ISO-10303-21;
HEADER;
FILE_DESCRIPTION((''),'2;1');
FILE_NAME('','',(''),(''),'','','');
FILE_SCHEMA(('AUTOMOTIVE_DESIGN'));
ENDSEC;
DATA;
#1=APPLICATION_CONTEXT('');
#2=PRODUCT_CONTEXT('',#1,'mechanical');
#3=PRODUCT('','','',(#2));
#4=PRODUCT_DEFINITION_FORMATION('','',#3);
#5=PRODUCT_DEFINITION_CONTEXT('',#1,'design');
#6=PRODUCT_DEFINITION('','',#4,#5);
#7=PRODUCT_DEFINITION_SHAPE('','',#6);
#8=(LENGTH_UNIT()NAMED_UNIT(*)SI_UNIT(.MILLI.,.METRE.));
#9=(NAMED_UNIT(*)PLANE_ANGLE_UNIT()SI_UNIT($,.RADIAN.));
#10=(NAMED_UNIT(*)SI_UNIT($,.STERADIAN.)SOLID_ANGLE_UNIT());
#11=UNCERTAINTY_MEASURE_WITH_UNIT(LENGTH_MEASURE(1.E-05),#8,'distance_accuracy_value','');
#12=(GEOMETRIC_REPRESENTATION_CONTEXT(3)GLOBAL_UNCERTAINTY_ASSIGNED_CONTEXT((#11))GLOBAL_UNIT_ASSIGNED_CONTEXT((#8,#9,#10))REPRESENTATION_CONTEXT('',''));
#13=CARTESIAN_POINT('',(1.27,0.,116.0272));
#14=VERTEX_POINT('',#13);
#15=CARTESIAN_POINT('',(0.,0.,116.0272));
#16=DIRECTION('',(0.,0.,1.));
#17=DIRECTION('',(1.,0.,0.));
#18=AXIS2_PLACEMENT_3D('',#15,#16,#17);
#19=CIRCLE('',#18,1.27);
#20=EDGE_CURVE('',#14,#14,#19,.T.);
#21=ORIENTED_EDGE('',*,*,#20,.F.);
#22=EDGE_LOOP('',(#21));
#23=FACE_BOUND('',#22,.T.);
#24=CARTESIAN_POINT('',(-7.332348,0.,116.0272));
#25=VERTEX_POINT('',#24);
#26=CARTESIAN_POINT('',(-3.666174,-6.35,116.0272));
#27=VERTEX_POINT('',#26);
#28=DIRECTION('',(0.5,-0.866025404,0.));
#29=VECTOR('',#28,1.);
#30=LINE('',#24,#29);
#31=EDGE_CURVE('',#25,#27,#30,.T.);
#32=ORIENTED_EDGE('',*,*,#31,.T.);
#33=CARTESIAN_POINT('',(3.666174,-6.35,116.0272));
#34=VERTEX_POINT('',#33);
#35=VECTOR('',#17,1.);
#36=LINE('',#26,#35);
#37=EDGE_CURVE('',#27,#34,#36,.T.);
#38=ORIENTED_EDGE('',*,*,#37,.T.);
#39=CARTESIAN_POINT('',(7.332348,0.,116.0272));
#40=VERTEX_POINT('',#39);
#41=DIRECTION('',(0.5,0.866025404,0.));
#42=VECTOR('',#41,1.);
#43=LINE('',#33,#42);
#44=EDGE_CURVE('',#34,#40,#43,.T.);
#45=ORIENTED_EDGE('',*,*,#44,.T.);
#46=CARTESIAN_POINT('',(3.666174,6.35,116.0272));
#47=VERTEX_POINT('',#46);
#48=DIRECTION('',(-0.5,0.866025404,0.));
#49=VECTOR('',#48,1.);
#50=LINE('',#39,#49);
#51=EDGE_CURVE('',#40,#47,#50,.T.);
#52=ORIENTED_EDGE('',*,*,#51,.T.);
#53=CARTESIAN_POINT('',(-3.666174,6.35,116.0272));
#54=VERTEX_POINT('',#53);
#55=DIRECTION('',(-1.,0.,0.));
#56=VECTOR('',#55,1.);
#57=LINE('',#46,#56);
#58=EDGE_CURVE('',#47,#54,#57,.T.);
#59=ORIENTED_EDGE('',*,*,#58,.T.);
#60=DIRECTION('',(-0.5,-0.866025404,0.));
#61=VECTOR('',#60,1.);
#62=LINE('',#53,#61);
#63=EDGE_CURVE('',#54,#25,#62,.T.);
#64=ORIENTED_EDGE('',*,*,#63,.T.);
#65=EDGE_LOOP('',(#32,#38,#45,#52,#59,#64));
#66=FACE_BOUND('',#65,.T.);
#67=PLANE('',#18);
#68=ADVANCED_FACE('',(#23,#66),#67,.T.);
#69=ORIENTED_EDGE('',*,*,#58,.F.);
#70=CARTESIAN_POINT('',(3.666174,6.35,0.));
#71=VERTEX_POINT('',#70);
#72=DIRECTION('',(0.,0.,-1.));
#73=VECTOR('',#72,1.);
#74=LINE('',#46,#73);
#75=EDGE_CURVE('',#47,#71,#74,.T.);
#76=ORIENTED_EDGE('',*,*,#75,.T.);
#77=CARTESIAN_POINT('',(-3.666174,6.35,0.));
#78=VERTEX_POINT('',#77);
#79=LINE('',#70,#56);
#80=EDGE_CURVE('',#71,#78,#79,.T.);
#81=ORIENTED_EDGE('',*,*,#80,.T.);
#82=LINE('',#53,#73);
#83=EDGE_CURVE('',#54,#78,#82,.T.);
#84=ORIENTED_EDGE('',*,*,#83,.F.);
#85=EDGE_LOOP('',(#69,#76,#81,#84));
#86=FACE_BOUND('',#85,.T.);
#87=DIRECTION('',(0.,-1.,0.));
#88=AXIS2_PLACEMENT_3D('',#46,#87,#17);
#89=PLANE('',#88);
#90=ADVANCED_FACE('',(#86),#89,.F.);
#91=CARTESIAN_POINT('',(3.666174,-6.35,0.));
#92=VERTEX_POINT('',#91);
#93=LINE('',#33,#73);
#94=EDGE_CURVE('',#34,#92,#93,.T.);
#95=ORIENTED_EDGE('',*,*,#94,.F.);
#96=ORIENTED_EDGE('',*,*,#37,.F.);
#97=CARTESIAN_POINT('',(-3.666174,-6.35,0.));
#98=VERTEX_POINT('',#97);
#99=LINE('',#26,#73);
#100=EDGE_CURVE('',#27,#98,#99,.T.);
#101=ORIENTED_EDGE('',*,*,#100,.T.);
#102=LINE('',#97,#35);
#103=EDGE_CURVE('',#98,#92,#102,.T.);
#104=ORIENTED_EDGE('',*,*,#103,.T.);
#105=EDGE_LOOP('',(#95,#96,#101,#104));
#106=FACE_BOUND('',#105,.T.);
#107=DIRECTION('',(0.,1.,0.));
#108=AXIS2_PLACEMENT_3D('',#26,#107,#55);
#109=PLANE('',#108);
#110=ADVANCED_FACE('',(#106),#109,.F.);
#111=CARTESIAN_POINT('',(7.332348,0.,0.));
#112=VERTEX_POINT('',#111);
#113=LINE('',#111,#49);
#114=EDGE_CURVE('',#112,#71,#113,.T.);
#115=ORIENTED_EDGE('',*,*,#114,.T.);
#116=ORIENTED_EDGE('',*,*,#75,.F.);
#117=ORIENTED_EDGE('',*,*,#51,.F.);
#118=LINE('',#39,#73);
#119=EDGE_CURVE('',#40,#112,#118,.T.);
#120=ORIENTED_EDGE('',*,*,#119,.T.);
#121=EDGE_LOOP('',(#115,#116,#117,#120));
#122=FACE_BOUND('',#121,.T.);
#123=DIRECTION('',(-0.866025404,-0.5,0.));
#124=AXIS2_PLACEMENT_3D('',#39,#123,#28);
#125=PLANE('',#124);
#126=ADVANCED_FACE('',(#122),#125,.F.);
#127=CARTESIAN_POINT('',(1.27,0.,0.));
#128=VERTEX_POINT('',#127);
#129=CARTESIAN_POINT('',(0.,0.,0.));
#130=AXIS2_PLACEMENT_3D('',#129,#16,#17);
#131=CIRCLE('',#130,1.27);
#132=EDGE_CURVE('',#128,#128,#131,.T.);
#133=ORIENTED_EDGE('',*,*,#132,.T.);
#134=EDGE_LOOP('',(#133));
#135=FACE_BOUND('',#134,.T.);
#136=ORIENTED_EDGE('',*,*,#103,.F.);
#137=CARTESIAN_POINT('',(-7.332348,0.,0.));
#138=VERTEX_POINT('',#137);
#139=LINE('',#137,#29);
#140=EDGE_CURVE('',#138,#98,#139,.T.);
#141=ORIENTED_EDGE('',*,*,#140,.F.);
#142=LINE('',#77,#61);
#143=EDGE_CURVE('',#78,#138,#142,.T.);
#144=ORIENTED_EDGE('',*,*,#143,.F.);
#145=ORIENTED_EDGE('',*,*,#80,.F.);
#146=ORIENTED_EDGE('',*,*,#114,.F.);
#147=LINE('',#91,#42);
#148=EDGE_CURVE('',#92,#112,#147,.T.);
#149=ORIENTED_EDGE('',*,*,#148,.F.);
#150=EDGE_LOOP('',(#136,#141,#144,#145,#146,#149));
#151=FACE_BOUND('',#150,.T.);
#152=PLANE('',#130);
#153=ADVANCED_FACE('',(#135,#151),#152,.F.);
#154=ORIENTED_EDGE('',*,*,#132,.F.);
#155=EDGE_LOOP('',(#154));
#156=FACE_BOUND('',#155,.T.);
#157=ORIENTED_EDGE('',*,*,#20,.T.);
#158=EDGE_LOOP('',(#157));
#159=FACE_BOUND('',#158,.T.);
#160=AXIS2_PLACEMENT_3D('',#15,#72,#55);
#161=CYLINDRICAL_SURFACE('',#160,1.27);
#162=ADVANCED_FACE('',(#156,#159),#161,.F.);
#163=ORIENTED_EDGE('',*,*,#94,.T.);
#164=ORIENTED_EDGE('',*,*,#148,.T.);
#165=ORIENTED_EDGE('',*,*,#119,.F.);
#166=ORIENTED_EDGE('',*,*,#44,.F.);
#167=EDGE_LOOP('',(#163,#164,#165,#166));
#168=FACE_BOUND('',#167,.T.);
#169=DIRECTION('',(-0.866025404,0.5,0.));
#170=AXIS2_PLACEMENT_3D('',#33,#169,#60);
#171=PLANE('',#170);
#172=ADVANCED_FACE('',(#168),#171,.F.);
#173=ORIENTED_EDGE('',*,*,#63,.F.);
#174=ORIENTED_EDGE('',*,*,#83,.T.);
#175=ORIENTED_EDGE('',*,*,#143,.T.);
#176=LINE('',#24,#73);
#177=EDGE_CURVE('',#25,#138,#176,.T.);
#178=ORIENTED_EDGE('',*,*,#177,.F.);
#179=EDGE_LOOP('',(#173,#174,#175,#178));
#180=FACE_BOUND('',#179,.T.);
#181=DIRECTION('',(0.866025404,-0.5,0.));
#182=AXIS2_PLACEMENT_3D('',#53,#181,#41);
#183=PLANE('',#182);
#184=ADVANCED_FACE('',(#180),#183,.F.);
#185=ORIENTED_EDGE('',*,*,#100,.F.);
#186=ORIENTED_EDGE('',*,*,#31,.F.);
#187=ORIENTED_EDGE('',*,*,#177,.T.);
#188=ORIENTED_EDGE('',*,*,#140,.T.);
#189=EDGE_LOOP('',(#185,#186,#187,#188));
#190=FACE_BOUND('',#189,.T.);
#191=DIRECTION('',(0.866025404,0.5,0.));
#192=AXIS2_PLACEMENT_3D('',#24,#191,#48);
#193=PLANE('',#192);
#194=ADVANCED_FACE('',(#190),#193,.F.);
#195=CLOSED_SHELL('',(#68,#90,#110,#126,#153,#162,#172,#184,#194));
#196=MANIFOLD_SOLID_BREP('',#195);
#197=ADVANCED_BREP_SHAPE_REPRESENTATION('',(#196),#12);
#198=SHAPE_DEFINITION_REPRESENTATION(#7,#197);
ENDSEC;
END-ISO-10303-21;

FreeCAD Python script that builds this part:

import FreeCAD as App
import Part
import Sketcher
from FreeCAD import Vector
Q = App.Units.Quantity


def add_polygon(sketch, points):
    """Adds a closed chain of lines whose ends are joined by coincident constraints."""
    first, n = sketch.GeometryCount, len(points)
    for a, b in zip(points, points[1:] + points[:1]):
        sketch.addGeometry(Part.LineSegment(App.Vector(*a, 0), App.Vector(*b, 0)), False)
    for i in range(n):
        sketch.addConstraint(Sketcher.Constraint("Coincident", first + i, 2, first + (i + 1) % n, 1))

doc = App.newDocument("Part")
body = doc.addObject("PartDesign::Body", "Body")

# Sketch on XY plane
sketch1 = body.newObject("Sketcher::SketchObject", "Sketch")
sketch1.AttachmentSupport = (doc.getObject("XY_Plane"), [""])
sketch1.MapMode = "FlatFace"
add_polygon(sketch1, [(7.3, 0), (3.7, 6.3), (-3.7, 6.3), (-7.3, 0), (-3.7, -6.3), (3.7, -6.3)])  # lines 0-5
sketch1.addGeometry(Part.Circle(Vector(0, 0, 0), Vector(0, 0, 1), 1.3), False)  # 6
sketch1.addConstraint(Sketcher.Constraint("Horizontal", 1))
sketch1.addConstraint(Sketcher.Constraint("Horizontal", 4))
sketch1.addConstraint(Sketcher.Constraint("Coincident", 6, 3, -1, 1))
sketch1.addConstraint(Sketcher.Constraint("Symmetric", 0, 2, 3, 2, -1, 1))
sketch1.addConstraint(Sketcher.Constraint("Symmetric", 2, 2, 5, 2, -1, 1))
sketch1.addConstraint(Sketcher.Constraint("PointOnObject", 2, 2, -1))
sketch1.addConstraint(Sketcher.Constraint("Parallel", 2, 5))
sketch1.addConstraint(Sketcher.Constraint("Vertical", 1, 2, 3, 2))
sketch1.addConstraint(Sketcher.Constraint("Diameter", 6, Q("0.1 in")))
sketch1.addConstraint(Sketcher.Constraint("Angle", 0, Q("120 deg")))
sketch1.addConstraint(Sketcher.Constraint("DistanceY", 3, 2, 1, 2, Q("0.5 in")))
sketch1.addConstraint(Sketcher.Constraint("DistanceX", 1, 2, 1, 1, Q("7.332348 mm")))
pad1 = body.newObject("PartDesign::Pad", "Pad")
pad1.Profile = sketch1
pad1.Length = Q("4.568 in")

doc.recompute()
